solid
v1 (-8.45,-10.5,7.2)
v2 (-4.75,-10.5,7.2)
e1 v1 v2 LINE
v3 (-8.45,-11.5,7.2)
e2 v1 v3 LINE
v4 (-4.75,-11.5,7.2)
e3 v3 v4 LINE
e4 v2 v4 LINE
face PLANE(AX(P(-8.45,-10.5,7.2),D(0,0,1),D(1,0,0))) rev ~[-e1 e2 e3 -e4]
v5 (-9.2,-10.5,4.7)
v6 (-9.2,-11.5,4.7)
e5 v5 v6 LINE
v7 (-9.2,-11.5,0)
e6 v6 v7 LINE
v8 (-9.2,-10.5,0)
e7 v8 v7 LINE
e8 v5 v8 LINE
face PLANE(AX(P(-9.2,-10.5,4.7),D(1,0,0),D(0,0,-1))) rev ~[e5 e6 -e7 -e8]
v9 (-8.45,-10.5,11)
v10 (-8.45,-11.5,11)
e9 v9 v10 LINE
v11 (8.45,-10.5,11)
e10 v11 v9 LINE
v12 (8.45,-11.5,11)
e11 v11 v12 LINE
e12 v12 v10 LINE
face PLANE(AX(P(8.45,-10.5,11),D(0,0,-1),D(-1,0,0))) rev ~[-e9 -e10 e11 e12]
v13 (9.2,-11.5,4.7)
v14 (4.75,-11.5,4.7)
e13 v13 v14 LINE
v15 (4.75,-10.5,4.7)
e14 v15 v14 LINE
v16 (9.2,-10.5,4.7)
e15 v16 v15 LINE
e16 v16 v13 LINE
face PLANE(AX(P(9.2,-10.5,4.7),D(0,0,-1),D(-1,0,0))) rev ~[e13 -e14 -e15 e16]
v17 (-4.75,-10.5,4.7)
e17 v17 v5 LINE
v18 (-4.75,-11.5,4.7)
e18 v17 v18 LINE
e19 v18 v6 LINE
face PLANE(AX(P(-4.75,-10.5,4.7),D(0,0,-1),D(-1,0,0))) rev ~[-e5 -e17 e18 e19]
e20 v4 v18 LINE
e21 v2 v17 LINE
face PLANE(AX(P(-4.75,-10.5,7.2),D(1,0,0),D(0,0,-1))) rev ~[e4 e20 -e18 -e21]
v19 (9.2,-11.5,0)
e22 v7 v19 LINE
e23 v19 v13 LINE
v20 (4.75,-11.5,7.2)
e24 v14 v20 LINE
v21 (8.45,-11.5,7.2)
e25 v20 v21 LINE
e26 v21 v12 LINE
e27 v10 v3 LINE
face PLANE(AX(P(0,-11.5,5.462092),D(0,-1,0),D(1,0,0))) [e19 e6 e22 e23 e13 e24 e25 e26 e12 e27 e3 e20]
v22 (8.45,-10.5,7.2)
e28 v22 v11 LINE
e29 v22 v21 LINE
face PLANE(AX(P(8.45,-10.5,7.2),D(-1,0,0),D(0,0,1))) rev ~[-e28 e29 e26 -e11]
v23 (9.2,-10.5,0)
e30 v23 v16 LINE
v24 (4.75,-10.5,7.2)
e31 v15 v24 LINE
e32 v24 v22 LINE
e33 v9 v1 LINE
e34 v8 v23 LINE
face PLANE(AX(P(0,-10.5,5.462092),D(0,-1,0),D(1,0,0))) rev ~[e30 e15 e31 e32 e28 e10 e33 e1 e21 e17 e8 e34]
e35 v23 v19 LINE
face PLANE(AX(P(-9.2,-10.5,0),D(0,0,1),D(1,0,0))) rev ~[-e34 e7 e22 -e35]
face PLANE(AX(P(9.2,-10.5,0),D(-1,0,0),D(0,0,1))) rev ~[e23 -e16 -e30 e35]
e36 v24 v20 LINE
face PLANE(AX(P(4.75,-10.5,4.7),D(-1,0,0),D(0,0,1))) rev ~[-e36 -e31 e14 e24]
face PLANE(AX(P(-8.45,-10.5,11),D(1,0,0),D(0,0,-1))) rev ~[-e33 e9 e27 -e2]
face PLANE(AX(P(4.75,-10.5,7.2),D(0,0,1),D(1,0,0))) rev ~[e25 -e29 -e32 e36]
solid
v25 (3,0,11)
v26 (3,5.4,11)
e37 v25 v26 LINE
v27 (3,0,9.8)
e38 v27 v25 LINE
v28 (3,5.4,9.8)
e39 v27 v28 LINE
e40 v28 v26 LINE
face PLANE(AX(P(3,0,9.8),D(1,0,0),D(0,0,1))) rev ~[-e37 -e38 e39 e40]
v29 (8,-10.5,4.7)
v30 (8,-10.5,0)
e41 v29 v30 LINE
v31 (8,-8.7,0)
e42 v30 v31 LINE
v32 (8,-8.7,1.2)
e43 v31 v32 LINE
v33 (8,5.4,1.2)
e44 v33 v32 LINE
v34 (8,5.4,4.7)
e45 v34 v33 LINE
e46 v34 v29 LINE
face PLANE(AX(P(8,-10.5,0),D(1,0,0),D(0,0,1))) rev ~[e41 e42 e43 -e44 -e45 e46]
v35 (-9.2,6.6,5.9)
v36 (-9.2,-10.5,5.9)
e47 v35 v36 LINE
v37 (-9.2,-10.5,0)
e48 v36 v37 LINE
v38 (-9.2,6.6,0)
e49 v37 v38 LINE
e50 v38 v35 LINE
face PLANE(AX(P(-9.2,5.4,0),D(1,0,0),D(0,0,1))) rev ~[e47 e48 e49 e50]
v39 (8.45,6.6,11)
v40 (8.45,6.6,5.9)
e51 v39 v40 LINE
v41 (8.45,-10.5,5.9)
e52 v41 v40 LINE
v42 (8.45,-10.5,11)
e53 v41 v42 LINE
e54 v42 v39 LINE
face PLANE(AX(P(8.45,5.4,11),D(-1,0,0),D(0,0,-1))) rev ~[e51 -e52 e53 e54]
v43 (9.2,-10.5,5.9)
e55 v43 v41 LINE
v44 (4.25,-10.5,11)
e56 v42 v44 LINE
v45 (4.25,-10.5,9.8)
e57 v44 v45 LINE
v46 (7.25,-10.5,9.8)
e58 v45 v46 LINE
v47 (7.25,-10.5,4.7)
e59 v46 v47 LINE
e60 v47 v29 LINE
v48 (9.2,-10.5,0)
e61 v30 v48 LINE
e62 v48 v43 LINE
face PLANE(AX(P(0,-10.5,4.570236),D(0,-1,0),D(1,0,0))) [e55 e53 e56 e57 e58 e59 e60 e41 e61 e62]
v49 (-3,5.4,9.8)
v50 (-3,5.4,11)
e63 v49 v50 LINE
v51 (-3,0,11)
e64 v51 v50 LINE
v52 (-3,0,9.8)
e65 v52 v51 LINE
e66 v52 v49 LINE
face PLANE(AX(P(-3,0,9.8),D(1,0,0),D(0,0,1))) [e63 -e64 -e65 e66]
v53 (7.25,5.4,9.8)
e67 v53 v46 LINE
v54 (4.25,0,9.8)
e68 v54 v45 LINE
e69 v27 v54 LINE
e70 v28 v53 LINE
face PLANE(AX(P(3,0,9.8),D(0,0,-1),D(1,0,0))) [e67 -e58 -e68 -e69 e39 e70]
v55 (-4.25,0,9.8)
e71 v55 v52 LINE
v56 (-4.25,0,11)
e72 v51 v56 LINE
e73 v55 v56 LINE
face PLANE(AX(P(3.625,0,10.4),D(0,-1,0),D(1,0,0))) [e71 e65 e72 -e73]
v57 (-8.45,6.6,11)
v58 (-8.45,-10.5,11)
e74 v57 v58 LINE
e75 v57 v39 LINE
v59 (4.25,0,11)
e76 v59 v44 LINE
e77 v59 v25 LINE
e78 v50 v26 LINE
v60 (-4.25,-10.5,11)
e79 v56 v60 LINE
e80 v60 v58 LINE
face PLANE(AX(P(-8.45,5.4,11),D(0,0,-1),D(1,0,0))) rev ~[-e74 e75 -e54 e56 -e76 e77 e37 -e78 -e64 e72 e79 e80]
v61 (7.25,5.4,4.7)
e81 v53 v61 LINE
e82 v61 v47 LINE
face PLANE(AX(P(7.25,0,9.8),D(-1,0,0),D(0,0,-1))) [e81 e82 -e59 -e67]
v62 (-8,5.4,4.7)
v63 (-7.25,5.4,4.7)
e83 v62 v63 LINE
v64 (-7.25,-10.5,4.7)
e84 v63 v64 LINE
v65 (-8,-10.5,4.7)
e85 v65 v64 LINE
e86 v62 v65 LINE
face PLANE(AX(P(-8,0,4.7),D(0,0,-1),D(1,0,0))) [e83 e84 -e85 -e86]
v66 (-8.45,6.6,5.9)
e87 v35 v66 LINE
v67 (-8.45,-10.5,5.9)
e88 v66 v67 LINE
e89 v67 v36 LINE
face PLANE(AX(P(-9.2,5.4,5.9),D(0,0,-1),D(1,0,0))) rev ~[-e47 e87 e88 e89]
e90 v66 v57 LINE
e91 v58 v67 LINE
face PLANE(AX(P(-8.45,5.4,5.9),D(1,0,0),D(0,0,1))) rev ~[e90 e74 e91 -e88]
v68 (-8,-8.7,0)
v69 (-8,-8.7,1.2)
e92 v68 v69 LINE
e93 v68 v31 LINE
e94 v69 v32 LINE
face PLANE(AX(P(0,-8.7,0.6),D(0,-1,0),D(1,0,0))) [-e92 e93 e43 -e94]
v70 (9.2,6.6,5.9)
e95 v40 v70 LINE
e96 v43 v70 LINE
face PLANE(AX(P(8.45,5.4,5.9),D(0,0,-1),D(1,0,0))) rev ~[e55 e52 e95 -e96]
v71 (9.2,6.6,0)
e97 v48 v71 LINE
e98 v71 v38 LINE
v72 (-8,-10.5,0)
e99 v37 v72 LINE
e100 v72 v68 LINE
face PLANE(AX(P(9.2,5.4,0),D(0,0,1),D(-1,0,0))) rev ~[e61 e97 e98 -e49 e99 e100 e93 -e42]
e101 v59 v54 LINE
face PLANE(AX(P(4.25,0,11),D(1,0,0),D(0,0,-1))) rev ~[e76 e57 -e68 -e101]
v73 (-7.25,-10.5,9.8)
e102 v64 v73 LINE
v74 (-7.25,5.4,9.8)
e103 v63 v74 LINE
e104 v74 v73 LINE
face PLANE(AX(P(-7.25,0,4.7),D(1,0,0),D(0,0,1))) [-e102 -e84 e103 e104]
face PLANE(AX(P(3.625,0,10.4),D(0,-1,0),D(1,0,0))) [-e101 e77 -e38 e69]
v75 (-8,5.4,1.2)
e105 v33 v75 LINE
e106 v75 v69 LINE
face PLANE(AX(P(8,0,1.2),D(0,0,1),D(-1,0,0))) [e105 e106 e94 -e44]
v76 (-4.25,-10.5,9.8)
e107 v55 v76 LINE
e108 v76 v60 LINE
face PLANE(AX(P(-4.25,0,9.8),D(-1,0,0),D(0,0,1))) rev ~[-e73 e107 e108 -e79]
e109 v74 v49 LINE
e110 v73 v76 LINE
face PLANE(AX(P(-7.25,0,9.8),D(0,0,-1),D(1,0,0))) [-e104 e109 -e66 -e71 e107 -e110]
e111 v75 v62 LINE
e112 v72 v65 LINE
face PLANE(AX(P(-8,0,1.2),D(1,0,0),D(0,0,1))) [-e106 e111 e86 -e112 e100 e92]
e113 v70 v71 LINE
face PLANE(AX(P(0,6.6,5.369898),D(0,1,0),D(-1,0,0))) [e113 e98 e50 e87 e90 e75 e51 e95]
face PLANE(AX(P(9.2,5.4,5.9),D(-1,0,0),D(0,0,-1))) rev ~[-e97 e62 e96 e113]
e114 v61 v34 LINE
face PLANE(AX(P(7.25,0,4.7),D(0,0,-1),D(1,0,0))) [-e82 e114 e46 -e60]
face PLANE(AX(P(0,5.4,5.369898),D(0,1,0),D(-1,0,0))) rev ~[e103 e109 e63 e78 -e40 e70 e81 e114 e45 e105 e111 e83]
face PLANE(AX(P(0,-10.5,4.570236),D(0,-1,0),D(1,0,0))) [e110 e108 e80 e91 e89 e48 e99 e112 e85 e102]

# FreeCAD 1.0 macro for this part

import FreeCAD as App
import Part
import Sketcher


def add_polygon(sketch, points):
    """Adds a closed chain of lines whose ends are joined by coincident constraints."""
    first, n = sketch.GeometryCount, len(points)
    for a, b in zip(points, points[1:] + points[:1]):
        sketch.addGeometry(Part.LineSegment(App.Vector(*a, 0), App.Vector(*b, 0)), False)
    for i in range(n):
        sketch.addConstraint(Sketcher.Constraint("Coincident", first + i, 2, first + (i + 1) % n, 1))

doc = App.newDocument("Part")
body = doc.addObject("PartDesign::Body", "Body")

# Sketch on XZ plane
sketch1 = body.newObject("Sketcher::SketchObject", "Sketch")
sketch1.AttachmentSupport = (doc.getObject("XZ_Plane"), [""])
sketch1.MapMode = "FlatFace"
add_polygon(sketch1, [(-9.2, 5.9), (-9.2, 0), (9.2, 0), (9.2, 5.9), (8.45, 5.9), (8.45, 11), (4.25, 11), (4.25, 9.8), (7.25, 9.8), (7.25, 4.7), (8, 4.7), (8, 1.2), (-8, 1.2), (-8, 4.7), (-7.25, 4.7), (-7.25, 9.8), (-4.25, 9.8), (-4.25, 11), (-8.45, 11), (-8.45, 5.9)])  # lines 0-19
sketch1.addConstraint([
    Sketcher.Constraint("Vertical", 0),
    Sketcher.Constraint("Horizontal", 1),
    Sketcher.Constraint("Vertical", 2),
    Sketcher.Constraint("Horizontal", 3),
    Sketcher.Constraint("Vertical", 4),
    Sketcher.Constraint("Horizontal", 5),
    Sketcher.Constraint("Vertical", 6),
    Sketcher.Constraint("Horizontal", 7),
    Sketcher.Constraint("Vertical", 8),
    Sketcher.Constraint("Horizontal", 9),
    Sketcher.Constraint("Vertical", 10),
    Sketcher.Constraint("Horizontal", 11),
    Sketcher.Constraint("Vertical", 12),
    Sketcher.Constraint("Horizontal", 13),
    Sketcher.Constraint("Vertical", 14),
    Sketcher.Constraint("Horizontal", 15),
    Sketcher.Constraint("Vertical", 16),
    Sketcher.Constraint("Horizontal", 17),
    Sketcher.Constraint("Vertical", 18),
    Sketcher.Constraint("Horizontal", 19),
    Sketcher.Constraint("Symmetric", 0, 2, 1, 2, -1, 1),
    Sketcher.Constraint("Symmetric", 9, 2, 12, 2, -2),
    Sketcher.Constraint("Symmetric", 7, 2, 14, 2, -2),
    Sketcher.Constraint("Symmetric", 5, 2, 16, 2, -2),
    Sketcher.Constraint("Symmetric", 3, 2, 18, 2, -2),
    Sketcher.Constraint("Equal", 3, 9),
    Sketcher.Constraint("Equal", 4, 8),
    Sketcher.Constraint("DistanceX", 7, 1, 7, 2, 3.0),
    Sketcher.Constraint("DistanceX", 11, 2, 11, 1, 16.0),
    Sketcher.Constraint("DistanceX", 1, 1, 1, 2, 18.4),
    Sketcher.Constraint("DistanceY", 0, 2, 0, 1, 5.9),
    Sketcher.Constraint("DistanceY", 4, 1, 4, 2, 5.1),
    Sketcher.Constraint("DistanceY", 6, 2, 6, 1, 1.2),
    Sketcher.Constraint("DistanceY", 10, 2, 10, 1, 3.5),
    Sketcher.Constraint("DistanceX", 3, 2, 3, 1, 0.75),
])
pad1 = body.newObject("PartDesign::Pad", "Pad")
pad1.Profile = sketch1
pad1.Length = 10.5

# Sketch on XZ plane
sketch2 = body.newObject("Sketcher::SketchObject", "Sketch001")
sketch2.AttachmentSupport = (doc.getObject("XZ_Plane"), [""])
sketch2.MapMode = "FlatFace"
add_polygon(sketch2, [(3, 11), (3, 9.8), (7.25, 9.8), (7.25, 4.7), (8, 4.7), (8, 1.2), (-8, 1.2), (-8, 4.7), (-7.25, 4.7), (-7.25, 9.8), (-3, 9.8), (-3, 11), (-8.45, 11), (-8.45, 5.9), (-9.2, 5.9), (-9.2, 0), (9.2, 0), (9.2, 5.9), (8.45, 5.9), (8.45, 11)])  # lines 0-19
sketch2.addConstraint([
    Sketcher.Constraint("Vertical", 0),
    Sketcher.Constraint("Horizontal", 1),
    Sketcher.Constraint("Vertical", 2),
    Sketcher.Constraint("Horizontal", 3),
    Sketcher.Constraint("Vertical", 4),
    Sketcher.Constraint("Horizontal", 5),
    Sketcher.Constraint("Vertical", 6),
    Sketcher.Constraint("Horizontal", 7),
    Sketcher.Constraint("Vertical", 8),
    Sketcher.Constraint("Horizontal", 9),
    Sketcher.Constraint("Vertical", 10),
    Sketcher.Constraint("Horizontal", 11),
    Sketcher.Constraint("Vertical", 12),
    Sketcher.Constraint("Horizontal", 13),
    Sketcher.Constraint("Vertical", 14),
    Sketcher.Constraint("Horizontal", 15),
    Sketcher.Constraint("Vertical", 16),
    Sketcher.Constraint("Horizontal", 17),
    Sketcher.Constraint("Vertical", 18),
    Sketcher.Constraint("Horizontal", 19),
    Sketcher.Constraint("Symmetric", 14, 2, 15, 2, -1, 1),
    Sketcher.Constraint("Symmetric", 3, 2, 6, 2, -2),
    Sketcher.Constraint("Symmetric", 1, 2, 8, 2, -2),
    Sketcher.Constraint("Symmetric", 12, 2, 17, 2, -2),
    Sketcher.Constraint("Symmetric", 10, 2, 19, 2, -2),
    Sketcher.Constraint("Equal", 7, 13),
    Sketcher.Constraint("Equal", 8, 12),
    Sketcher.Constraint("DistanceX", 5, 2, 5, 1, 16.0),
    Sketcher.Constraint("DistanceX", 15, 1, 15, 2, 18.4),
    Sketcher.Constraint("DistanceY", 0, 2, 0, 1, 1.2),
    Sketcher.Constraint("DistanceY", 2, 2, 2, 1, 5.1),
    Sketcher.Constraint("DistanceY", 4, 2, 4, 1, 3.5),
    Sketcher.Constraint("DistanceY", 14, 2, 14, 1, 5.9),
    Sketcher.Constraint("DistanceX", -1, 1, 0, 2, 3.0),
    Sketcher.Constraint("DistanceX", 1, 1, 1, 2, 4.25),
])
pad2 = body.newObject("PartDesign::Pad", "Pad001")
pad2.Profile = sketch2
pad2.Length = 5.4
pad2.Reversed = True

# Sketch on XZ plane
sketch3 = body.newObject("Sketcher::SketchObject", "Sketch002")
sketch3.AttachmentSupport = (doc.getObject("XZ_Plane"), [""])
sketch3.MapMode = "FlatFace"
sketch3.AttachmentOffset = App.Placement(App.Vector(0, 0, -5.4), App.Rotation())
add_polygon(sketch3, [(-8.45, 11), (8.45, 11), (8.45, 5.9), (9.2, 5.9), (9.2, 0), (-9.2, 0), (-9.2, 5.9), (-8.45, 5.9)])  # lines 0-7
sketch3.addConstraint([
    Sketcher.Constraint("Horizontal", 0),
    Sketcher.Constraint("Vertical", 1),
    Sketcher.Constraint("Horizontal", 2),
    Sketcher.Constraint("Vertical", 3),
    Sketcher.Constraint("Horizontal", 4),
    Sketcher.Constraint("Vertical", 5),
    Sketcher.Constraint("Horizontal", 6),
    Sketcher.Constraint("Vertical", 7),
    Sketcher.Constraint("Symmetric", 3, 2, 4, 2, -1, 1),
    Sketcher.Constraint("Symmetric", 1, 2, 6, 2, -2),
    Sketcher.Constraint("DistanceX", 0, 1, 0, 2, 16.9),
    Sketcher.Constraint("DistanceX", 4, 2, 4, 1, 18.4),
    Sketcher.Constraint("DistanceY", 1, 2, 1, 1, 5.1),
    Sketcher.Constraint("DistanceY", 3, 2, 3, 1, 5.9),
])
pad3 = body.newObject("PartDesign::Pad", "Pad002")
pad3.Profile = sketch3
pad3.Length = 1.2
pad3.Reversed = True

# Sketch on XZ plane
sketch4 = body.newObject("Sketcher::SketchObject", "Sketch003")
sketch4.AttachmentSupport = (doc.getObject("XZ_Plane"), [""])
sketch4.MapMode = "FlatFace"
sketch4.AttachmentOffset = App.Placement(App.Vector(0, 0, 10.5), App.Rotation())
add_polygon(sketch4, [(-8, 1.2), (-8, 0), (8, 0), (8, 1.2)])  # lines 0-3
sketch4.addConstraint([
    Sketcher.Constraint("Vertical", 0),
    Sketcher.Constraint("Horizontal", 1),
    Sketcher.Constraint("Vertical", 2),
    Sketcher.Constraint("Horizontal", 3),
    Sketcher.Constraint("Symmetric", 0, 2, 1, 2, -1, 1),
    Sketcher.Constraint("DistanceX", 1, 1, 1, 2, 16.0),
    Sketcher.Constraint("DistanceY", 0, 2, 0, 1, 1.2),
])
pocket1 = body.newObject("PartDesign::Pocket", "Pocket")
pocket1.Profile = sketch4
pocket1.Length = 1.8
body2 = doc.addObject("PartDesign::Body", "Body001")

# Sketch on XZ plane
sketch5 = body2.newObject("Sketcher::SketchObject", "Sketch004")
sketch5.AttachmentSupport = (doc.getObject("XZ_Plane001"), [""])
sketch5.MapMode = "FlatFace"
sketch5.AttachmentOffset = App.Placement(App.Vector(0, 0, 10.5), App.Rotation())
add_polygon(sketch5, [(4.75, 7.2), (8.45, 7.2), (8.45, 11), (-8.45, 11), (-8.45, 7.2), (-4.75, 7.2), (-4.75, 4.7), (-9.2, 4.7), (-9.2, 0), (9.2, 0), (9.2, 4.7), (4.75, 4.7)])  # lines 0-11
sketch5.addConstraint([
    Sketcher.Constraint("Horizontal", 0),
    Sketcher.Constraint("Vertical", 1),
    Sketcher.Constraint("Horizontal", 2),
    Sketcher.Constraint("Vertical", 3),
    Sketcher.Constraint("Horizontal", 4),
    Sketcher.Constraint("Vertical", 5),
    Sketcher.Constraint("Horizontal", 6),
    Sketcher.Constraint("Vertical", 7),
    Sketcher.Constraint("Horizontal", 8),
    Sketcher.Constraint("Vertical", 9),
    Sketcher.Constraint("Horizontal", 10),
    Sketcher.Constraint("Vertical", 11),
    Sketcher.Constraint("Symmetric", 7, 2, 8, 2, -1, 1),
    Sketcher.Constraint("Symmetric", 0, 2, 3, 2, -2),
    Sketcher.Constraint("Symmetric", 5, 2, 10, 2, -2),
    Sketcher.Constraint("DistanceX", 0, 1, 0, 2, 3.7),
    Sketcher.Constraint("DistanceX", 2, 2, 2, 1, 16.9),
    Sketcher.Constraint("DistanceX", 8, 1, 8, 2, 18.4),
    Sketcher.Constraint("DistanceY", 1, 1, 1, 2, 3.8),
    Sketcher.Constraint("DistanceY", 5, 2, 5, 1, 2.5),
    Sketcher.Constraint("DistanceY", 7, 2, 7, 1, 4.7),
])
pad4 = body2.newObject("PartDesign::Pad", "Pad003")
pad4.Profile = sketch5
pad4.Length = 1

doc.recompute()
